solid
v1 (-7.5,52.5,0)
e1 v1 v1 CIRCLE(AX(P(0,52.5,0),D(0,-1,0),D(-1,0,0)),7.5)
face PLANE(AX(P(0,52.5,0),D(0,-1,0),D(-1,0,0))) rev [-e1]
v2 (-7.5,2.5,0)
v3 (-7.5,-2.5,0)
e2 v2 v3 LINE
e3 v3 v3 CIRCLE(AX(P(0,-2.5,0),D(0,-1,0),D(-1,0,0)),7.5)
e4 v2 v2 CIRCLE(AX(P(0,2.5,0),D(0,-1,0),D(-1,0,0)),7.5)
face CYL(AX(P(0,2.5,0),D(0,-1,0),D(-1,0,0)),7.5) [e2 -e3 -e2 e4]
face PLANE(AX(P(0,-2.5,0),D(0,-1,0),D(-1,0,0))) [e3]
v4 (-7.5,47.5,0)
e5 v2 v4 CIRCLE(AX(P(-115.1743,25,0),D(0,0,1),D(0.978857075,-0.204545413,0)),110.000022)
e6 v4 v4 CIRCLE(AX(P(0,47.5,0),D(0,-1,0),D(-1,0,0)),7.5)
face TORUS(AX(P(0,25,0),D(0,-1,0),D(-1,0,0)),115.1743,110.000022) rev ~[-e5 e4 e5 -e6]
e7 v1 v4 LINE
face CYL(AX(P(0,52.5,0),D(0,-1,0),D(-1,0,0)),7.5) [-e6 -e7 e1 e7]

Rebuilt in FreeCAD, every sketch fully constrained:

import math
import FreeCAD as App
import Part
import Sketcher
from FreeCAD import Vector

doc = App.newDocument("Part")
body = doc.addObject("PartDesign::Body", "Body")

# Sketch on XY plane
sketch1 = body.newObject("Sketcher::SketchObject", "Sketch")
sketch1.AttachmentSupport = (doc.getObject("XY_Plane"), [""])
sketch1.MapMode = "FlatFace"
sketch1.addGeometry([
    Part.LineSegment(Vector(-7.5, 2.5, 0), Vector(-7.5, -2.5, 0)),  # 0
    Part.LineSegment(Vector(-7.5, -2.5, 0), Vector(0, -2.5, 0)),  # 1
    Part.LineSegment(Vector(0, -2.5, 0), Vector(0, 52.5, 0)),  # 2
    Part.LineSegment(Vector(0, 52.5, 0), Vector(-7.5, 52.5, 0)),  # 3
    Part.LineSegment(Vector(-7.5, 52.5, 0), Vector(-7.5, 47.5, 0)),  # 4
    Part.ArcOfCircle(Part.Circle(Vector(-115.1743, 25, 0), Vector(0, 0, 1), 110.000022), math.radians(-11.802889), math.radians(11.802889)),  # 5
], False)
sketch1.addConstraint([
    Sketcher.Constraint("Coincident", 0, 2, 1, 1),
    Sketcher.Constraint("Coincident", 1, 2, 2, 1),
    Sketcher.Constraint("Coincident", 2, 2, 3, 1),
    Sketcher.Constraint("Coincident", 3, 2, 4, 1),
    Sketcher.Constraint("Coincident", 4, 2, 5, 2),
    Sketcher.Constraint("Coincident", 5, 1, 0, 1),
    Sketcher.Constraint("Vertical", 0),
    Sketcher.Constraint("Horizontal", 1),
    Sketcher.Constraint("Vertical", 2),
    Sketcher.Constraint("Horizontal", 3),
    Sketcher.Constraint("Vertical", 4),
    Sketcher.Constraint("PointOnObject", 1, 2, -2),
    Sketcher.Constraint("Vertical", 0, 2, 3, 2),
    Sketcher.Constraint("Equal", 0, 4),
    Sketcher.Constraint("Radius", 5, 110.0),
    Sketcher.Constraint("DistanceY", 0, 2, 0, 1, 5.0),
    Sketcher.Constraint("DistanceY", 2, 1, 2, 2, 55.0),
    Sketcher.Constraint("DistanceX", 1, 1, 1, 2, 7.5),
    Sketcher.Constraint("DistanceY", -1, 1, 5, 3, 25.0),
])
revolution = body.newObject("PartDesign::Revolution", "Revolution")
revolution.Profile = sketch1
revolution.ReferenceAxis = (sketch1, ["V_Axis"])
revolution.Angle = 360

doc.recompute()
